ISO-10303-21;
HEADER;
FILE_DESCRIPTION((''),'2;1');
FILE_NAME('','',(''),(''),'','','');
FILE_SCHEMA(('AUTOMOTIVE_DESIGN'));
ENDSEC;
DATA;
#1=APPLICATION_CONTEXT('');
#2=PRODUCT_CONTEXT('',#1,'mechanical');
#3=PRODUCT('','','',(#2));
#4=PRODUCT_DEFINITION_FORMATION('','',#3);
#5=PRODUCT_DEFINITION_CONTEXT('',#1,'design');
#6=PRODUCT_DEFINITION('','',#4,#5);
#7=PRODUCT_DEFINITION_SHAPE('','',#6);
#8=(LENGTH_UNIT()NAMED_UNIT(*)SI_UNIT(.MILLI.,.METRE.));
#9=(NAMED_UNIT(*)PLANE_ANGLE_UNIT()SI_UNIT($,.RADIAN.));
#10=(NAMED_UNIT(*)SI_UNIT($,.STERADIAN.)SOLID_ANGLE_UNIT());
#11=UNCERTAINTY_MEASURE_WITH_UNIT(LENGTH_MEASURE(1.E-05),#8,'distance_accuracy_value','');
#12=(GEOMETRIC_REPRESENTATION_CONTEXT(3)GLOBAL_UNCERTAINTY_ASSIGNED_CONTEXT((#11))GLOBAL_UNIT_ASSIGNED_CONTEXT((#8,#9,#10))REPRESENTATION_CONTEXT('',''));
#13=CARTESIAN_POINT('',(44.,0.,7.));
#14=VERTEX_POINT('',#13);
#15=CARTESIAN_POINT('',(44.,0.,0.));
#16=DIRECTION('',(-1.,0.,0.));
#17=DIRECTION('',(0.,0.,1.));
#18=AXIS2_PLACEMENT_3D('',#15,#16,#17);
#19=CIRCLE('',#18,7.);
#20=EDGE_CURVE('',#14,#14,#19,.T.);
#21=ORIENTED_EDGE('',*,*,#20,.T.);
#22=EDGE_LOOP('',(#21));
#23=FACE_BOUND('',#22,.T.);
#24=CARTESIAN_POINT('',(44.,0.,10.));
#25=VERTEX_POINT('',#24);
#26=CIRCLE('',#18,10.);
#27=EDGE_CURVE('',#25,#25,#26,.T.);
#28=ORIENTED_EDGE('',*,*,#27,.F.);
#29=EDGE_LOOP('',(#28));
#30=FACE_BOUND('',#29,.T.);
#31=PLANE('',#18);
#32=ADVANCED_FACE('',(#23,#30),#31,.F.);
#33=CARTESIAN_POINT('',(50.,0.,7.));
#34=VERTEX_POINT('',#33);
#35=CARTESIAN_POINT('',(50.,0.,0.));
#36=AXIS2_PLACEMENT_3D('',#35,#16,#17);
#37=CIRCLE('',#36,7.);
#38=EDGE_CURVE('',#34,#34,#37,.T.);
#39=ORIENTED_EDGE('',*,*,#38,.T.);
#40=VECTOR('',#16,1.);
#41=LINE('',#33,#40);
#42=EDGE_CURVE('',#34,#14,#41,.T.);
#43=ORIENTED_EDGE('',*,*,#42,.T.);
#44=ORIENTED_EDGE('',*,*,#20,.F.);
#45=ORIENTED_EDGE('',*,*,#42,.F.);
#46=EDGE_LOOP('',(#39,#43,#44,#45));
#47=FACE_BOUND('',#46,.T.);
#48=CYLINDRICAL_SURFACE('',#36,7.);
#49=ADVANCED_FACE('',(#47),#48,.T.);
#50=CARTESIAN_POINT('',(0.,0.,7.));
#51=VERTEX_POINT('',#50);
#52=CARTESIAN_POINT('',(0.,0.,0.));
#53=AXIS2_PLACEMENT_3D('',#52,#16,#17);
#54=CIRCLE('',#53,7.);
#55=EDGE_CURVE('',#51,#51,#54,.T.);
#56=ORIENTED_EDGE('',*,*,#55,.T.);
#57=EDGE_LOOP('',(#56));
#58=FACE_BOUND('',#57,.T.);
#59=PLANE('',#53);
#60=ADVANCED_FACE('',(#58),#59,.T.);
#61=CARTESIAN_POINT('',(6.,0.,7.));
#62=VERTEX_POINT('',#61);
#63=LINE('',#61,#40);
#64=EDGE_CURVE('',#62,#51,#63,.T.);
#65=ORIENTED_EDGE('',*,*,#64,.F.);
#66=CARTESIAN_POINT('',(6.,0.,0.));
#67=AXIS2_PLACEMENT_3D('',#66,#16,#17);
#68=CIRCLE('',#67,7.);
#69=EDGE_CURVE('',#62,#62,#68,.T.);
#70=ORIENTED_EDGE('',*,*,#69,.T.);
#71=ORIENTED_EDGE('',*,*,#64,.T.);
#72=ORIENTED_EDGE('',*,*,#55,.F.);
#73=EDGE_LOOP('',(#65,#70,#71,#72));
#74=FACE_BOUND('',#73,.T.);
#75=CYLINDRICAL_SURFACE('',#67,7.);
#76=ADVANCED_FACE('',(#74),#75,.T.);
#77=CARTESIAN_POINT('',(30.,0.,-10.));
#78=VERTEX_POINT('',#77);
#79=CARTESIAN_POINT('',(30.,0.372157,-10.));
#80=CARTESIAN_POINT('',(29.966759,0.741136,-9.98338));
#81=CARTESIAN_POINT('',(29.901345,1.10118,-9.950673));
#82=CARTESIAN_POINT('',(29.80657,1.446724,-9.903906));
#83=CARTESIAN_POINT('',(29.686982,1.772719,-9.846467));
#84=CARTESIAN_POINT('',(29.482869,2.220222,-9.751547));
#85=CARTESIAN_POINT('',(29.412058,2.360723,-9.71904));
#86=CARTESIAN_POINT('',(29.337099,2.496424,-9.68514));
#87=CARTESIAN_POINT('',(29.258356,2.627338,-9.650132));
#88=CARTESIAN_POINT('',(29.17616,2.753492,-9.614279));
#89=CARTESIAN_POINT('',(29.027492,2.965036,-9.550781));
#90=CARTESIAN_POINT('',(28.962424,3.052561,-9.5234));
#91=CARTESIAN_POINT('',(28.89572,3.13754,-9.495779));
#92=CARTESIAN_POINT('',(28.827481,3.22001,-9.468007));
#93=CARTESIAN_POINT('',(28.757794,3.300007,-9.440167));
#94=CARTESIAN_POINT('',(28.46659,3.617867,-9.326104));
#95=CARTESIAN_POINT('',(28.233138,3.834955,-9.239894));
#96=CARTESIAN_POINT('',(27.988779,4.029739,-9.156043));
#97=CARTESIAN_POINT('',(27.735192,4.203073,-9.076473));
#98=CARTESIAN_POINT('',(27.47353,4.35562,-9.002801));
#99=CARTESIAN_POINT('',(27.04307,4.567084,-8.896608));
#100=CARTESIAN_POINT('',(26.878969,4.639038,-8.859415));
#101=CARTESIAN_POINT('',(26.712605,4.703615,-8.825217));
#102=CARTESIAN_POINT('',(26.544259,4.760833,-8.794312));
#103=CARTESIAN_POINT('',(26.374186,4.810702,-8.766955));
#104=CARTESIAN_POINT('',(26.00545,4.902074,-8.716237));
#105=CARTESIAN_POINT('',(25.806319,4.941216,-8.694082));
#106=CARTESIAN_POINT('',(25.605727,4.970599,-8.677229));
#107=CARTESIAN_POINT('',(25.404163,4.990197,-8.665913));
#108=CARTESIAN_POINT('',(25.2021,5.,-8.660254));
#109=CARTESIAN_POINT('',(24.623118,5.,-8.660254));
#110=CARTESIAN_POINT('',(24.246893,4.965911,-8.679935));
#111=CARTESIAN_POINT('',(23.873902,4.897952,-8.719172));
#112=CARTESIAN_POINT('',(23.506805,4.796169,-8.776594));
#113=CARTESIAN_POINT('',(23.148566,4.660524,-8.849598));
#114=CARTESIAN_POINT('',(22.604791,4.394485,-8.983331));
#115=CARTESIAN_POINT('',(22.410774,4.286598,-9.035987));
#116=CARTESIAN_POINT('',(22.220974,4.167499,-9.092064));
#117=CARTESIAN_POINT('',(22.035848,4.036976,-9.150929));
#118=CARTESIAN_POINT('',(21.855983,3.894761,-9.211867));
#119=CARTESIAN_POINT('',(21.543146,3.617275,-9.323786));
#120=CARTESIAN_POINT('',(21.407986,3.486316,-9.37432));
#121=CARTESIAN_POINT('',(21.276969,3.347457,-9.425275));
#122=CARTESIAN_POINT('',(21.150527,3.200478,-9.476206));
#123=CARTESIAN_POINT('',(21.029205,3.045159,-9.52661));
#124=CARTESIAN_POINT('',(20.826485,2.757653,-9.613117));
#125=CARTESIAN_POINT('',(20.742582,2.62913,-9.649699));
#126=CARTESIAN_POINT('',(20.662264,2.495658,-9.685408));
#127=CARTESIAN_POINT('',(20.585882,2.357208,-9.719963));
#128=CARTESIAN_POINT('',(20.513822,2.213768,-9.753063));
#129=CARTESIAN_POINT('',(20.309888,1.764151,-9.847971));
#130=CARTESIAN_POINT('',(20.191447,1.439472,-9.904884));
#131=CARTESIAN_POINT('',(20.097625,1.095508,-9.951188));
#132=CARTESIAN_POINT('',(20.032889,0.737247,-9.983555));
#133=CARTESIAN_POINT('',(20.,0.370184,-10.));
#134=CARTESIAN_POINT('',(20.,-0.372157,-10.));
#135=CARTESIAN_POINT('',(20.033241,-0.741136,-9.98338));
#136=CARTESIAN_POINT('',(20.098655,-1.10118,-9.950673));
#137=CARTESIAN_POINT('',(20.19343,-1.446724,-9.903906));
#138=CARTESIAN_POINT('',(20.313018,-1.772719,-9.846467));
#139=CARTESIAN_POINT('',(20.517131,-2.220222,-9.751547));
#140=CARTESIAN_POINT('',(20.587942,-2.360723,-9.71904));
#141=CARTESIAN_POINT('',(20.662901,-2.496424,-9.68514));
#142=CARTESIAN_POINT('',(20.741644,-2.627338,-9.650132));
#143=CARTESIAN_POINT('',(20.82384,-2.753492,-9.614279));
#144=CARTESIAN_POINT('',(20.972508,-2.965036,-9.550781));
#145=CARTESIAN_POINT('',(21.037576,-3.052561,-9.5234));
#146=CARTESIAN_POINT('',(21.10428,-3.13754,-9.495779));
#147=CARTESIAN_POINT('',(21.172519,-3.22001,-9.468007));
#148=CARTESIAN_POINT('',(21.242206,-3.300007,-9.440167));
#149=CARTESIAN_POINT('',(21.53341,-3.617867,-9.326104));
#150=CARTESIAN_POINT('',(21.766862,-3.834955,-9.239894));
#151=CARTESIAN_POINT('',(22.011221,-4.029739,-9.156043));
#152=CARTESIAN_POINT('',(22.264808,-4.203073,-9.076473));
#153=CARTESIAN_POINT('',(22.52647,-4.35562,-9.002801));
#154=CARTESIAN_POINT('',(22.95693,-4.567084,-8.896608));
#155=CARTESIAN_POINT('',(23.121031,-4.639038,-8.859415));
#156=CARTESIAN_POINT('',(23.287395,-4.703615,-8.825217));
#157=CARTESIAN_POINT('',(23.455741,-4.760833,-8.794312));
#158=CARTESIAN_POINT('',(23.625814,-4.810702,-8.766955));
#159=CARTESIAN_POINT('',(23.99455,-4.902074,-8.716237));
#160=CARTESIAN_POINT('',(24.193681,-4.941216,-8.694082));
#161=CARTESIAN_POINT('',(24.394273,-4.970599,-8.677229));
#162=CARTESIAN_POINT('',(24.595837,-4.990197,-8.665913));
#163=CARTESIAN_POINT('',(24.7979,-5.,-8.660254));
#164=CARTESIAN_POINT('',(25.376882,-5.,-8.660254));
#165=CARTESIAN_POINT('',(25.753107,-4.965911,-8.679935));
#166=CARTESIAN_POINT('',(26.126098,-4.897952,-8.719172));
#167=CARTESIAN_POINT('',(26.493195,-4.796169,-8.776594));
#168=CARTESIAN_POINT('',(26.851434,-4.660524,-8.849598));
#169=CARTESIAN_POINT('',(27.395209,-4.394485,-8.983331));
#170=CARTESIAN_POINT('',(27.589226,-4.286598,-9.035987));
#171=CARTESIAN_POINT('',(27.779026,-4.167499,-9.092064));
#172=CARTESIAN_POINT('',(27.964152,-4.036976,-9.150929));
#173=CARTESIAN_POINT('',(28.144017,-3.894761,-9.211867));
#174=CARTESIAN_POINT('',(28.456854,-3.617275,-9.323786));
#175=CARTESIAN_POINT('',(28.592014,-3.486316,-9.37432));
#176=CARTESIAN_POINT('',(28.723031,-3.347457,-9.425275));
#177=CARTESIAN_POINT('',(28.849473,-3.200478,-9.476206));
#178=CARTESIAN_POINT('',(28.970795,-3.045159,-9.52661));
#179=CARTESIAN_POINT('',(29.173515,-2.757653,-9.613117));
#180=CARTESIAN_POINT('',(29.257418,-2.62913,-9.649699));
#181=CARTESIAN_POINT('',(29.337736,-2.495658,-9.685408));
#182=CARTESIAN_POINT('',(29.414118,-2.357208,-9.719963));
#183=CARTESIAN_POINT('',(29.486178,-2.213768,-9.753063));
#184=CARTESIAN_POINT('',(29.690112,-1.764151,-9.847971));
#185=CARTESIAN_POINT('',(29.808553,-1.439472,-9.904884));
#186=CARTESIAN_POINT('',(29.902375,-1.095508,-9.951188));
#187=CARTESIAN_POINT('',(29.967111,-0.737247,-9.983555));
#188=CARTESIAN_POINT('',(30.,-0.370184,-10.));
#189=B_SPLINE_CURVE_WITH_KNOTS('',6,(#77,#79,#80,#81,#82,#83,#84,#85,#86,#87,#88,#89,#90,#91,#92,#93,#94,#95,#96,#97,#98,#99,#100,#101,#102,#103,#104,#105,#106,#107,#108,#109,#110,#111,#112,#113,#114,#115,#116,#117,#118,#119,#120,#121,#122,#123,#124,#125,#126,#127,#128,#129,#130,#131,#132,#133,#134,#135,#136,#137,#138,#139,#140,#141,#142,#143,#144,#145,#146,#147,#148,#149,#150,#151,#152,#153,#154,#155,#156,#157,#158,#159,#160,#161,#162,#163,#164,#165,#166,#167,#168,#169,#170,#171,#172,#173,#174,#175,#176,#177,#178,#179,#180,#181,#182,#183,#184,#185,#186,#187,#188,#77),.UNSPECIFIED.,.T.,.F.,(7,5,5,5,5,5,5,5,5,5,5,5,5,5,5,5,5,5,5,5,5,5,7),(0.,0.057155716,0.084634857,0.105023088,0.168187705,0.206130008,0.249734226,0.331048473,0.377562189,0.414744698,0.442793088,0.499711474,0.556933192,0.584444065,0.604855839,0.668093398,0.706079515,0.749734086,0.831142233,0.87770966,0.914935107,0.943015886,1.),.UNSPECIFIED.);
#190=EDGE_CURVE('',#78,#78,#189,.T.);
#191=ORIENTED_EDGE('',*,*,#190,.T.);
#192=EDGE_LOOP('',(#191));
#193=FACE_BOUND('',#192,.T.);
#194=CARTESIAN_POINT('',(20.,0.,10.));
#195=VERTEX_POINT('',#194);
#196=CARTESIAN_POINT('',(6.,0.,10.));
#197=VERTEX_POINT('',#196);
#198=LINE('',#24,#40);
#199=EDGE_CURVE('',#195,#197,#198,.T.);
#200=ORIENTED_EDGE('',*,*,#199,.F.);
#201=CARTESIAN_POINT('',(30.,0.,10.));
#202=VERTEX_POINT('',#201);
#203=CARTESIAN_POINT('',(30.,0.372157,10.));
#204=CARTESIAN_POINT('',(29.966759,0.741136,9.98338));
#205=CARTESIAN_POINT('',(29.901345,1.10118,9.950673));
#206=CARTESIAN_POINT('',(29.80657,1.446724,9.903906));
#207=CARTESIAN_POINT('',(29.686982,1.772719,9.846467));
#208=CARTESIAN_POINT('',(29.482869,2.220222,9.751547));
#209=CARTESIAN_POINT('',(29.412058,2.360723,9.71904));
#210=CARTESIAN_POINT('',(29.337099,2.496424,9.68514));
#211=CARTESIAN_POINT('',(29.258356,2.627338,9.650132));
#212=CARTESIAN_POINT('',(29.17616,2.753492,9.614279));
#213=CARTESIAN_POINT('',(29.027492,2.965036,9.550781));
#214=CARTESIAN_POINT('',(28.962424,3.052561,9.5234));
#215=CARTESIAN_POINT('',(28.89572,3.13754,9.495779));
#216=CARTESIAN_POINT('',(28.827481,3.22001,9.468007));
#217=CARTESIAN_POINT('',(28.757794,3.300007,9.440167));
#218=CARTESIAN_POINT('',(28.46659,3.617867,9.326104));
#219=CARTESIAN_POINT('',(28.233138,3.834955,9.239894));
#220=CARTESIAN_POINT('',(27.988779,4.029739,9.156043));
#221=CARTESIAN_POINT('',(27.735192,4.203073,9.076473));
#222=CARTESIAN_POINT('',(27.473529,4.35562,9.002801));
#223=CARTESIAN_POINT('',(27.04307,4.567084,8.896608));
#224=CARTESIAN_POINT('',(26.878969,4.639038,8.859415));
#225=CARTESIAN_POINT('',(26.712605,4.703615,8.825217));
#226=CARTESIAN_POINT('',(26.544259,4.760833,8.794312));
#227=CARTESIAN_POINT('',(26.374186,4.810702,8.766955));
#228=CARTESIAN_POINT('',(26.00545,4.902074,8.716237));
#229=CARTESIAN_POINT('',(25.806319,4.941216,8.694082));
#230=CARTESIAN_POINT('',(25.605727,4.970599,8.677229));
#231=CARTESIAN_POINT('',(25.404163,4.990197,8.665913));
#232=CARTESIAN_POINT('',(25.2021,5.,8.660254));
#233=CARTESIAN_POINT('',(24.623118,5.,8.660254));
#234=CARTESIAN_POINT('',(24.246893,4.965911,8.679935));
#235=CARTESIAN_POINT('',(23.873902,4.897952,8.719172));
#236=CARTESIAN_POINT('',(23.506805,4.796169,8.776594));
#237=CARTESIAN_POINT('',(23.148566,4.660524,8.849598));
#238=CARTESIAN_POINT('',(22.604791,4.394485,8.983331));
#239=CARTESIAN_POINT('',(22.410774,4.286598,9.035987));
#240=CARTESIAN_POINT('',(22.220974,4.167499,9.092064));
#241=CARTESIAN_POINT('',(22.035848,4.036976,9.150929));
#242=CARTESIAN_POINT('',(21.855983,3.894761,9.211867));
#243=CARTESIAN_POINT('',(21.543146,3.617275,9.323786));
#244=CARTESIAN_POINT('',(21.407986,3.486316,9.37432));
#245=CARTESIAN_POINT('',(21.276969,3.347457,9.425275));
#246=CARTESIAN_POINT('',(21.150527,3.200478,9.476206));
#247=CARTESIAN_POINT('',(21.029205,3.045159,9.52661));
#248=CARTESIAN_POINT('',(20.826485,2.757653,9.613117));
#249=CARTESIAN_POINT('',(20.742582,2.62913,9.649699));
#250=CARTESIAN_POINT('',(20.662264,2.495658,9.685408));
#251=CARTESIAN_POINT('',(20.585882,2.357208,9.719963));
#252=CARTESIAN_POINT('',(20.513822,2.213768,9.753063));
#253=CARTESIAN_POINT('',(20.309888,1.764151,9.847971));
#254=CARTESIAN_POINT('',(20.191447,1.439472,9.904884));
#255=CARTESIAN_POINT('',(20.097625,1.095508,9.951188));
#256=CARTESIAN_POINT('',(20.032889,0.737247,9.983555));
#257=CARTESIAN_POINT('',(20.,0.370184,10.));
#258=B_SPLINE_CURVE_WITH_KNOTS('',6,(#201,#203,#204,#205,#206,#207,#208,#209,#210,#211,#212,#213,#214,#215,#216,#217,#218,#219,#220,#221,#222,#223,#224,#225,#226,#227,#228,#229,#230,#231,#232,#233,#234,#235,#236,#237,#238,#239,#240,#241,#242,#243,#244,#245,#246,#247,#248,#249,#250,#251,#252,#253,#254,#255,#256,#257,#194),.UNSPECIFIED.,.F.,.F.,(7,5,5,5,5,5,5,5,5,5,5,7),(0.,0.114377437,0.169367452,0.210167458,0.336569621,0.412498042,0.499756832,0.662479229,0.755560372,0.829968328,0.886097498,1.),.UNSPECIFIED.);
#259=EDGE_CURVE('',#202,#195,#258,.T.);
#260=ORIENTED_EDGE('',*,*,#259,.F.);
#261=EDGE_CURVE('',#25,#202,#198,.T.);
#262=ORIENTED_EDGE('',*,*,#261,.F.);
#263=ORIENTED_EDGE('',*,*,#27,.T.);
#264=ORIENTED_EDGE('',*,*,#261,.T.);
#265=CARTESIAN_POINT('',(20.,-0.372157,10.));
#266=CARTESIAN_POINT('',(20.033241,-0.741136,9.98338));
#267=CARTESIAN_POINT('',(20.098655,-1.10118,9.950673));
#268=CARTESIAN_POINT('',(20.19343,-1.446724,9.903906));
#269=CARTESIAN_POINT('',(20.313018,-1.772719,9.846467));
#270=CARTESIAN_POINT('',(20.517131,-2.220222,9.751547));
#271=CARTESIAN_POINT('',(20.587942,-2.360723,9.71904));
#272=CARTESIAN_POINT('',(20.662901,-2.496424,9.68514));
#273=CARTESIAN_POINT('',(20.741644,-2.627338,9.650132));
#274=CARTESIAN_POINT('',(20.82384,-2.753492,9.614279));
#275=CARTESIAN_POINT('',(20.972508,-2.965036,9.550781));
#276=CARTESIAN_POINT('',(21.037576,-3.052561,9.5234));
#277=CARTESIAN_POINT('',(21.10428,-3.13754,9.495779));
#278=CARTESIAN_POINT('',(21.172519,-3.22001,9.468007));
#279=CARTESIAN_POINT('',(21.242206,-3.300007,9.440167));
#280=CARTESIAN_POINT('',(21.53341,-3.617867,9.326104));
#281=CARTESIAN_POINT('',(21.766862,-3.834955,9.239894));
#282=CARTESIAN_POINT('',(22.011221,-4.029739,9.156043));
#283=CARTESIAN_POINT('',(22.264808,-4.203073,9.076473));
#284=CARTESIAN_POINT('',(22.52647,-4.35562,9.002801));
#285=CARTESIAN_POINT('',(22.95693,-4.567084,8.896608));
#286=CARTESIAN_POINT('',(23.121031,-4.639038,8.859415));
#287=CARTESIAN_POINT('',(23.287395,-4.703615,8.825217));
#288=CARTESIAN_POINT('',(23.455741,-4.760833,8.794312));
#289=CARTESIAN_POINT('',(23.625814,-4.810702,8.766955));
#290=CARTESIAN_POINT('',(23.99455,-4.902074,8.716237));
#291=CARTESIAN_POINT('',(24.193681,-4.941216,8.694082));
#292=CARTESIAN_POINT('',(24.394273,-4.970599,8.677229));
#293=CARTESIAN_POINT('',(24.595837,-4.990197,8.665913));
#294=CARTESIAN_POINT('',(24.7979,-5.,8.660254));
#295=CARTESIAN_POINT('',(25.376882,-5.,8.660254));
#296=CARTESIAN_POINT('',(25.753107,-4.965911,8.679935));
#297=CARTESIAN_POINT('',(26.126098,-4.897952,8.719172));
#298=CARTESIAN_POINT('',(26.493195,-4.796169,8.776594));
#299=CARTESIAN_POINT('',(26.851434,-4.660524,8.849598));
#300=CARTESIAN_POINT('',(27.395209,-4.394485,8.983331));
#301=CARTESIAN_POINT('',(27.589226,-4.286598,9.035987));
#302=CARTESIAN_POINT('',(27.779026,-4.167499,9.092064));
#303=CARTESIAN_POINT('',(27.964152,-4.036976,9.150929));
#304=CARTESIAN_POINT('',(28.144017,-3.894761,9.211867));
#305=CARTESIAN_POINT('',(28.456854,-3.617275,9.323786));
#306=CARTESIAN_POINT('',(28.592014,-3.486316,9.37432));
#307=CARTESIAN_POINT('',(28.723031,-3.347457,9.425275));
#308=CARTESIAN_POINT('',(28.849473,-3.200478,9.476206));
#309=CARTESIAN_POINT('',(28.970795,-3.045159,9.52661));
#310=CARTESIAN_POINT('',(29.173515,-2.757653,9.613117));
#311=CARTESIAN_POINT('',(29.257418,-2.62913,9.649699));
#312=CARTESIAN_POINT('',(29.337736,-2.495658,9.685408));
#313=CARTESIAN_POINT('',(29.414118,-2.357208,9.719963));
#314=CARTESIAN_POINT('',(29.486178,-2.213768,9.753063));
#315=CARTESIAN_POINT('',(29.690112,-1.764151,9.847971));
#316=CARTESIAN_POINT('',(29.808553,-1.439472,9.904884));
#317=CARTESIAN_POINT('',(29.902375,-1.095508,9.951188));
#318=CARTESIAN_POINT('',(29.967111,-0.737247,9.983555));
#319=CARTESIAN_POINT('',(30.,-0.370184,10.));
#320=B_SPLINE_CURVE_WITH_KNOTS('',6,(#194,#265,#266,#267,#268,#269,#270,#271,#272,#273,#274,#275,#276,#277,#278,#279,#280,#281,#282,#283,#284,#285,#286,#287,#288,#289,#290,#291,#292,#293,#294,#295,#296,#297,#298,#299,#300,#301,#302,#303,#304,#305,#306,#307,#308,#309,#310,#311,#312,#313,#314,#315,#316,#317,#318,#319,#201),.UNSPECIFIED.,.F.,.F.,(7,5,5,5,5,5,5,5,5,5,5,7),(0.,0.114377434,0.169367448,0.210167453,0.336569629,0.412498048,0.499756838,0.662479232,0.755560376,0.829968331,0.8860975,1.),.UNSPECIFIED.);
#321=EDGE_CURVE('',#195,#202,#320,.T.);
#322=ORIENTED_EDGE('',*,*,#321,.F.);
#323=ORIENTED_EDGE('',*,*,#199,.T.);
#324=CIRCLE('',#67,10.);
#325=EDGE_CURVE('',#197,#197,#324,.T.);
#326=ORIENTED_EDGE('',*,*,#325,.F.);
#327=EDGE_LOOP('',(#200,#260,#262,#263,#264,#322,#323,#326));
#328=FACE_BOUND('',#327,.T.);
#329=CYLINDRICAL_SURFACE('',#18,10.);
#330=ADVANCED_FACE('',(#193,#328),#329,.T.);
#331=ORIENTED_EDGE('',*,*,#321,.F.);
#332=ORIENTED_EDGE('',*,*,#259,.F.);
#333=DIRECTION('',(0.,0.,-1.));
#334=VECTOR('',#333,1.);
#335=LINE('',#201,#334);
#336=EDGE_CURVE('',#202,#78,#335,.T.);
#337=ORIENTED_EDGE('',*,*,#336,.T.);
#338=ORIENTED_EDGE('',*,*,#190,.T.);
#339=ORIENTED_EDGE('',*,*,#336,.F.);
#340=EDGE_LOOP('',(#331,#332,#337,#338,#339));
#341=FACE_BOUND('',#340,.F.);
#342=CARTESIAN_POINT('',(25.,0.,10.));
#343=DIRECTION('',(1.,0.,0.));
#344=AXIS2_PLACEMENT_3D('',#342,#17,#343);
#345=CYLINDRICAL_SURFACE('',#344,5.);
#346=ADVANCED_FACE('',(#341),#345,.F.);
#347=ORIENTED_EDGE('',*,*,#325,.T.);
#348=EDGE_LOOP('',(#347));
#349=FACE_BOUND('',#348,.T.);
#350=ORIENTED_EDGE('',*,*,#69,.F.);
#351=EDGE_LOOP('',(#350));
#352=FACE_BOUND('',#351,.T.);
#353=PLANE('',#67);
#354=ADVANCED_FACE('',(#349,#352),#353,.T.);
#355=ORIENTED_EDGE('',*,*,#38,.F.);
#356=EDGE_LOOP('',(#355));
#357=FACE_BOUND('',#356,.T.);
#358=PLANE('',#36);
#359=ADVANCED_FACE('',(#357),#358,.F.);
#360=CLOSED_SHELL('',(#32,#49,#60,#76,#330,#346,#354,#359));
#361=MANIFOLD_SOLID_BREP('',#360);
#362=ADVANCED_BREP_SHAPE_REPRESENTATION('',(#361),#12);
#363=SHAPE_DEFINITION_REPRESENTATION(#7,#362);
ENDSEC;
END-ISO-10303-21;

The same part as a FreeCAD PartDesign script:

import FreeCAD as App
import Part
import Sketcher

V = App.Vector
Q = App.Units.Quantity


def add_polygon(sketch, points):
    """Adds a closed chain of lines whose ends are joined by coincident constraints."""
    first, n = sketch.GeometryCount, len(points)
    for a, b in zip(points, points[1:] + points[:1]):
        sketch.addGeometry(Part.LineSegment(App.Vector(*a, 0), App.Vector(*b, 0)), False)
    for i in range(n):
        sketch.addConstraint(Sketcher.Constraint("Coincident", first + i, 2, first + (i + 1) % n, 1))

doc = App.newDocument("Part")
body = doc.addObject("PartDesign::Body", "Body")

sketch1 = doc.addObject("Sketcher::SketchObject", "Sketch")
body.addObject(sketch1)
sketch1.AttachmentSupport = (doc.XZ_Plane, [""])
sketch1.MapMode = "FlatFace"
add_polygon(sketch1, [(0, 7), (0, 0), (50, 0), (50, 7), (44, 7), (44, 10), (6, 10), (6, 7)])
sketch1.addConstraint(Sketcher.Constraint("Vertical", 0))
sketch1.addConstraint(Sketcher.Constraint("Horizontal", 1))
sketch1.addConstraint(Sketcher.Constraint("Vertical", 2))
sketch1.addConstraint(Sketcher.Constraint("Horizontal", 3))
sketch1.addConstraint(Sketcher.Constraint("Vertical", 4))
sketch1.addConstraint(Sketcher.Constraint("Horizontal", 5))
sketch1.addConstraint(Sketcher.Constraint("Vertical", 6))
sketch1.addConstraint(Sketcher.Constraint("Horizontal", 7))
sketch1.addConstraint(Sketcher.Constraint("Coincident", 0, 2, -1, 1))
sketch1.addConstraint(Sketcher.Constraint("Horizontal", 3, 2, 6, 2))
sketch1.addConstraint(Sketcher.Constraint("Equal", 3, 7))
sketch1.addConstraint(Sketcher.Constraint("DistanceX", 1, 1, 1, 2, Q("50 mm")))
sketch1.addConstraint(Sketcher.Constraint("DistanceX", 3, 2, 3, 1, Q("6 mm")))
sketch1.addConstraint(Sketcher.Constraint("DistanceY", 0, 2, 0, 1, Q("7 mm")))
sketch1.addConstraint(Sketcher.Constraint("DistanceY", 4, 1, 4, 2, Q("3 mm")))
revolution = doc.addObject("PartDesign::Revolution", "Revolution")
body.addObject(revolution)
revolution.Profile = sketch1
revolution.ReferenceAxis = (sketch1, ["H_Axis"])
revolution.Angle = 360

sketch2 = doc.addObject("Sketcher::SketchObject", "Sketch001")
body.addObject(sketch2)
sketch2.AttachmentSupport = (doc.XY_Plane, [""])
sketch2.MapMode = "FlatFace"
sketch2.AttachmentOffset = App.Placement(V(0, 0, 10), App.Rotation())
sketch2.addGeometry(Part.Circle(V(25, 0, 0), V(0, 0, 1), 5), False)
sketch2.addConstraint(Sketcher.Constraint("PointOnObject", 0, 3, -1))
sketch2.addConstraint(Sketcher.Constraint("Diameter", 0, Q("10 mm")))
sketch2.addConstraint(Sketcher.Constraint("DistanceX", -1, 1, 0, 3, Q("25 mm")))
pocket1 = doc.addObject("PartDesign::Pocket", "Pocket")
body.addObject(pocket1)
pocket1.Profile = sketch2
pocket1.Type = "ThroughAll"

doc.recompute()
